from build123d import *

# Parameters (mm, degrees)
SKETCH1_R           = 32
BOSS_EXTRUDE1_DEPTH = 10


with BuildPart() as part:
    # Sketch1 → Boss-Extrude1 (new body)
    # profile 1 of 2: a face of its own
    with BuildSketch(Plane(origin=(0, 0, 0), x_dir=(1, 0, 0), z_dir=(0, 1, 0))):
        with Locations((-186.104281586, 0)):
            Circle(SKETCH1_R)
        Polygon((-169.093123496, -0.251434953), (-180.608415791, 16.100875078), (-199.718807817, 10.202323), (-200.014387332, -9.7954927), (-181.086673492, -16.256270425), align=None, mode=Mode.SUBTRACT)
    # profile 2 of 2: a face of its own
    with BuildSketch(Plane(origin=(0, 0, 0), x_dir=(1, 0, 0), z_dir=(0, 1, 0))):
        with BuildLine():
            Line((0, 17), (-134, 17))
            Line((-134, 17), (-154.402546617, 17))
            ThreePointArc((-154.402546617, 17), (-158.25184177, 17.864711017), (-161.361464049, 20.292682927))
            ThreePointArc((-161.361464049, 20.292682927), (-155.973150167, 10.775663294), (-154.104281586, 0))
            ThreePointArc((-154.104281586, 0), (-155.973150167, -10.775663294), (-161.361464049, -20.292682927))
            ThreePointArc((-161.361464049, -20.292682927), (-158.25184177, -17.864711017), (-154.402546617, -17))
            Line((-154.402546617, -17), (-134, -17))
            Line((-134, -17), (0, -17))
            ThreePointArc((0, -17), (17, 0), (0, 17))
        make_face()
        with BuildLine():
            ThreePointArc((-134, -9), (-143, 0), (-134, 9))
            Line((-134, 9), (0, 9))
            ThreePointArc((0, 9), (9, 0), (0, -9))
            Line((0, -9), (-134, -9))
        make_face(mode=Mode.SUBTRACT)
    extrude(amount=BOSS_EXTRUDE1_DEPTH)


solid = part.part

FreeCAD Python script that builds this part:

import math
import FreeCAD as App
import Part
import Sketcher

V = App.Vector

doc = App.newDocument("Part")
body = doc.addObject("PartDesign::Body", "Body")

sketch1 = doc.addObject("Sketcher::SketchObject", "Sketch")
body.addObject(sketch1)
sketch1.AttachmentSupport = (doc.XZ_Plane, [""])
sketch1.MapMode = "FlatFace"
sketch1.addGeometry(Part.ArcOfCircle(Part.Circle(V(-186.104282, 0, 0), V(0, 0, 1), 32), math.radians(39.356699), math.radians(320.643301)), False)
sketch1.addGeometry(Part.ArcOfCircle(Part.Circle(V(-154.402547, 26, 0), V(0, 0, 1), 9), math.radians(-140.643301), math.radians(-90)), False)
sketch1.addGeometry(Part.LineSegment(V(-154.402547, 17, 0), V(0, 17, 0)), False)
sketch1.addGeometry(Part.ArcOfCircle(Part.Circle(V(0, 0, 0), V(0, 0, 1), 17), math.radians(-90), math.radians(90)), False)
sketch1.addGeometry(Part.LineSegment(V(0, -17, 0), V(-154.402547, -17, 0)), False)
sketch1.addGeometry(Part.ArcOfCircle(Part.Circle(V(-154.402547, -26, 0), V(0, 0, 1), 9), math.radians(90), math.radians(140.643301)), False)
sketch1.addGeometry(Part.LineSegment(V(-180.608416, -16.100875, 0), V(-169.093123, 0.251435, 0)), False)
sketch1.addGeometry(Part.LineSegment(V(-169.093123, 0.251435, 0), V(-181.086673, 16.25627, 0)), False)
sketch1.addGeometry(Part.LineSegment(V(-181.086673, 16.25627, 0), V(-200.014387, 9.795493, 0)), False)
sketch1.addGeometry(Part.LineSegment(V(-200.014387, 9.795493, 0), V(-199.718808, -10.202323, 0)), False)
sketch1.addGeometry(Part.LineSegment(V(-199.718808, -10.202323, 0), V(-180.608416, -16.100875, 0)), False)
sketch1.addGeometry(Part.ArcOfCircle(Part.Circle(V(-134, 0, 0), V(0, 0, 1), 9), math.radians(90), math.radians(270)), False)
sketch1.addGeometry(Part.LineSegment(V(-134, -9, 0), V(0, -9, 0)), False)
sketch1.addGeometry(Part.ArcOfCircle(Part.Circle(V(0, 0, 0), V(0, 0, 1), 9), math.radians(-90), math.radians(90)), False)
sketch1.addGeometry(Part.LineSegment(V(0, 9, 0), V(-134, 9, 0)), False)
sketch1.addConstraint(Sketcher.Constraint("Tangent", 0, 1, 1, 1))
sketch1.addConstraint(Sketcher.Constraint("Tangent", 1, 2, 2, 1))
sketch1.addConstraint(Sketcher.Constraint("Tangent", 2, 2, 3, 2))
sketch1.addConstraint(Sketcher.Constraint("Tangent", 3, 1, 4, 1))
sketch1.addConstraint(Sketcher.Constraint("Tangent", 4, 2, 5, 1))
sketch1.addConstraint(Sketcher.Constraint("Tangent", 5, 2, 0, 2))
sketch1.addConstraint(Sketcher.Constraint("Coincident", 6, 2, 7, 1))
sketch1.addConstraint(Sketcher.Constraint("Coincident", 7, 2, 8, 1))
sketch1.addConstraint(Sketcher.Constraint("Coincident", 8, 2, 9, 1))
sketch1.addConstraint(Sketcher.Constraint("Coincident", 9, 2, 10, 1))
sketch1.addConstraint(Sketcher.Constraint("Coincident", 10, 2, 6, 1))
sketch1.addConstraint(Sketcher.Constraint("Tangent", 11, 2, 12, 1))
sketch1.addConstraint(Sketcher.Constraint("Tangent", 12, 2, 13, 1))
sketch1.addConstraint(Sketcher.Constraint("Tangent", 13, 2, 14, 1))
sketch1.addConstraint(Sketcher.Constraint("Tangent", 14, 2, 11, 1))
sketch1.addConstraint(Sketcher.Constraint("Horizontal", 2))
sketch1.addConstraint(Sketcher.Constraint("Horizontal", 4))
sketch1.addConstraint(Sketcher.Constraint("Horizontal", 12))
sketch1.addConstraint(Sketcher.Constraint("Horizontal", 14))
sketch1.addConstraint(Sketcher.Constraint("Coincident", 3, 3, -1, 1))
sketch1.addConstraint(Sketcher.Constraint("Coincident", 13, 3, -1, 1))
sketch1.addConstraint(Sketcher.Constraint("Equal", 1, 5))
sketch1.addConstraint(Sketcher.Constraint("Equal", 5, 11))
sketch1.addConstraint(Sketcher.Constraint("PointOnObject", 0, 3, -1))
sketch1.addConstraint(Sketcher.Constraint("Equal", 6, 7))
sketch1.addConstraint(Sketcher.Constraint("Equal", 7, 8))
sketch1.addConstraint(Sketcher.Constraint("Equal", 8, 9))
sketch1.addConstraint(Sketcher.Constraint("Equal", 9, 10))
sketch1.addConstraint(Sketcher.Constraint("Radius", 0, 32.0))
sketch1.addConstraint(Sketcher.Constraint("Radius", 1, 9.0))
sketch1.addConstraint(Sketcher.Constraint("Radius", 3, 17.0))
sketch1.addConstraint(Sketcher.Constraint("DistanceX", 12, 1, 12, 2, 134.0))
sketch1.addConstraint(Sketcher.Constraint("Distance", 6, 20.0))
sketch1.addConstraint(Sketcher.Constraint("DistanceX", 2, 1, 2, 2, 154.402547))
sketch1.addConstraint(Sketcher.Constraint("DistanceY", -1, 1, 7, 2, 16.25627))
sketch1.addConstraint(Sketcher.Constraint("DistanceX", 0, 3, 6, 2, 17.011158))
sketch1.addConstraint(Sketcher.Constraint("DistanceX", 0, 3, 7, 2, 5.017608))
sketch1.addConstraint(Sketcher.Constraint("DistanceY", 8, 2, 0, 1, 10.49719))
sketch1.addConstraint(Sketcher.Constraint("DistanceX", 8, 2, 9, 2, 0.29558))
pad1 = doc.addObject("PartDesign::Pad", "Pad")
body.addObject(pad1)
pad1.Profile = sketch1
pad1.Length = 10
pad1.Reversed = True

doc.recompute()
